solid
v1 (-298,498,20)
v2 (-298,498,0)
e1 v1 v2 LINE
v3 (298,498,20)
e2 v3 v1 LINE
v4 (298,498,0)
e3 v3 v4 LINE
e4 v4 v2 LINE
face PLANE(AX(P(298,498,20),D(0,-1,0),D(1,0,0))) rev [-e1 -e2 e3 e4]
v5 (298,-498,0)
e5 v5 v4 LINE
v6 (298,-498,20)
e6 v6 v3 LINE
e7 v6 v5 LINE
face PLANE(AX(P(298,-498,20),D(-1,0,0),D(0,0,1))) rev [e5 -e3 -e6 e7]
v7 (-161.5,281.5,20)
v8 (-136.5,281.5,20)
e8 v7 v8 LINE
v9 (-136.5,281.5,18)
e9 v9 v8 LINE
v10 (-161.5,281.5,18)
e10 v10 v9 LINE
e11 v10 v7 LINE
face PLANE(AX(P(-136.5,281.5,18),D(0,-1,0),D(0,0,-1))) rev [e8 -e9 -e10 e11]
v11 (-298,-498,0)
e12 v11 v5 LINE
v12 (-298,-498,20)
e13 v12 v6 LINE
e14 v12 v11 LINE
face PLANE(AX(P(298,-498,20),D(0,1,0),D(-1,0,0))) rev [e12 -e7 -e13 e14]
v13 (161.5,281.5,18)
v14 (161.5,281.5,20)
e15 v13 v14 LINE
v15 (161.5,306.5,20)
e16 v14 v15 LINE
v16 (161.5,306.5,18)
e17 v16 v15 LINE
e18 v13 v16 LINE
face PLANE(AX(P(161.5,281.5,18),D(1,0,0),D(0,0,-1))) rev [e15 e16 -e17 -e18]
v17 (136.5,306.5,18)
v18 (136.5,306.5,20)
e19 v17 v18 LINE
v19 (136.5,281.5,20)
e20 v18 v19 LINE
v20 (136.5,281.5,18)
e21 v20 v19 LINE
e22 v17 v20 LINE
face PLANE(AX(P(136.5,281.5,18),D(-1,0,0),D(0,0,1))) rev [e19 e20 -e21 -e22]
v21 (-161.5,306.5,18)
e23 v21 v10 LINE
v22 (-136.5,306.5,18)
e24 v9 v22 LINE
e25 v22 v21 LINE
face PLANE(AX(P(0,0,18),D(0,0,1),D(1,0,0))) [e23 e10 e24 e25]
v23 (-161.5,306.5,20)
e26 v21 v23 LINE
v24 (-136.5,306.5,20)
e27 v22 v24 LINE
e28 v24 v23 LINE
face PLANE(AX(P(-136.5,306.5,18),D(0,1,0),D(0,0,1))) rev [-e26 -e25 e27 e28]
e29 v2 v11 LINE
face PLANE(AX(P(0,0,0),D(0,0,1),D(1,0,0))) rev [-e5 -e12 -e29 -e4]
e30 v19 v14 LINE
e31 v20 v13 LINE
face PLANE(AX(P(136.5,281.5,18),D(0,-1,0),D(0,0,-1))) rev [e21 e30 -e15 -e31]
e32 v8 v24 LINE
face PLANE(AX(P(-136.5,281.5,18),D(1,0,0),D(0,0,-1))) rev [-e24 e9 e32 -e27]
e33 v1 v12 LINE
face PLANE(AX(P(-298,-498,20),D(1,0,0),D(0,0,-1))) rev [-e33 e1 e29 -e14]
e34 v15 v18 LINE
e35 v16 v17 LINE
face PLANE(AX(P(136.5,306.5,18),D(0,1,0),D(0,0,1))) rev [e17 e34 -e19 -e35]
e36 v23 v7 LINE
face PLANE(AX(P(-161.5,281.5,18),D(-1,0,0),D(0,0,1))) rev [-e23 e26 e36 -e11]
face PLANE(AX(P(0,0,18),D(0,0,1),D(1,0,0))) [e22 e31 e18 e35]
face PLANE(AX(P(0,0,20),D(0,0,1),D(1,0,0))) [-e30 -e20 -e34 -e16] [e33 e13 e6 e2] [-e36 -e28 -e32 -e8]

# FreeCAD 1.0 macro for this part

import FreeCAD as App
import Part
import Sketcher

doc = App.newDocument("Part")
body = doc.addObject("PartDesign::Body", "Body")

sketch1 = body.newObject("Sketcher::SketchObject", "Sketch")
sketch1.AttachmentSupport = (doc.getObject("XY_Plane"), [""])
sketch1.MapMode = "FlatFace"
sketch1.addGeometry([
    Part.LineSegment(App.Vector(-298, 498, 0), App.Vector(-298, -498, 0)),
    Part.LineSegment(App.Vector(-298, -498, 0), App.Vector(298, -498, 0)),
    Part.LineSegment(App.Vector(298, -498, 0), App.Vector(298, 498, 0)),
    Part.LineSegment(App.Vector(298, 498, 0), App.Vector(-298, 498, 0)),
], False)
sketch1.addConstraint([
    Sketcher.Constraint("Coincident", 0, 2, 1, 1),
    Sketcher.Constraint("Coincident", 1, 2, 2, 1),
    Sketcher.Constraint("Coincident", 2, 2, 3, 1),
    Sketcher.Constraint("Coincident", 3, 2, 0, 1),
    Sketcher.Constraint("Vertical", 0),
    Sketcher.Constraint("Horizontal", 1),
    Sketcher.Constraint("Vertical", 2),
    Sketcher.Constraint("Horizontal", 3),
    Sketcher.Constraint("Symmetric", 0, 2, 2, 2, -1, 1),
    Sketcher.Constraint("DistanceX", 1, 1, 1, 2, 596.0),
    Sketcher.Constraint("DistanceY", 0, 2, 0, 1, 996.0),
])
pad1 = body.newObject("PartDesign::Pad", "Pad")
pad1.Profile = sketch1
pad1.Length = 20

sketch2 = body.newObject("Sketcher::SketchObject", "Sketch001")
sketch2.AttachmentSupport = (doc.getObject("XY_Plane"), [""])
sketch2.MapMode = "FlatFace"
sketch2.AttachmentOffset = App.Placement(App.Vector(0, 0, 20), App.Rotation())
sketch2.addGeometry([
    Part.LineSegment(App.Vector(136, 306, 0), App.Vector(136, 282, 0)),
    Part.LineSegment(App.Vector(136, 282, 0), App.Vector(162, 282, 0)),
    Part.LineSegment(App.Vector(162, 282, 0), App.Vector(162, 306, 0)),
    Part.LineSegment(App.Vector(162, 306, 0), App.Vector(136, 306, 0)),
    Part.LineSegment(App.Vector(-162, 306, 0), App.Vector(-162, 282, 0)),
    Part.LineSegment(App.Vector(-162, 282, 0), App.Vector(-136, 282, 0)),
    Part.LineSegment(App.Vector(-136, 282, 0), App.Vector(-136, 306, 0)),
    Part.LineSegment(App.Vector(-136, 306, 0), App.Vector(-162, 306, 0)),
], False)
sketch2.addConstraint([
    Sketcher.Constraint("Coincident", 0, 2, 1, 1),
    Sketcher.Constraint("Coincident", 1, 2, 2, 1),
    Sketcher.Constraint("Coincident", 2, 2, 3, 1),
    Sketcher.Constraint("Coincident", 3, 2, 0, 1),
    Sketcher.Constraint("Coincident", 4, 2, 5, 1),
    Sketcher.Constraint("Coincident", 5, 2, 6, 1),
    Sketcher.Constraint("Coincident", 6, 2, 7, 1),
    Sketcher.Constraint("Coincident", 7, 2, 4, 1),
    Sketcher.Constraint("Vertical", 0),
    Sketcher.Constraint("Horizontal", 1),
    Sketcher.Constraint("Vertical", 2),
    Sketcher.Constraint("Horizontal", 3),
    Sketcher.Constraint("Vertical", 4),
    Sketcher.Constraint("Horizontal", 5),
    Sketcher.Constraint("Vertical", 6),
    Sketcher.Constraint("Horizontal", 7),
    Sketcher.Constraint("Symmetric", 1, 2, 4, 2, -2),
    Sketcher.Constraint("Symmetric", 3, 2, 6, 2, -2),
    Sketcher.Constraint("Equal", 7, 0),
    Sketcher.Constraint("DistanceX", 1, 1, 1, 2, 25.0),
    Sketcher.Constraint("DistanceX", 4, 2, 0, 2, 298.0),
    Sketcher.Constraint("DistanceY", -1, 1, 0, 2, 281.5),
])
pocket1 = body.newObject("PartDesign::Pocket", "Pocket")
pocket1.Profile = sketch2
pocket1.Length = 2

doc.recompute()
